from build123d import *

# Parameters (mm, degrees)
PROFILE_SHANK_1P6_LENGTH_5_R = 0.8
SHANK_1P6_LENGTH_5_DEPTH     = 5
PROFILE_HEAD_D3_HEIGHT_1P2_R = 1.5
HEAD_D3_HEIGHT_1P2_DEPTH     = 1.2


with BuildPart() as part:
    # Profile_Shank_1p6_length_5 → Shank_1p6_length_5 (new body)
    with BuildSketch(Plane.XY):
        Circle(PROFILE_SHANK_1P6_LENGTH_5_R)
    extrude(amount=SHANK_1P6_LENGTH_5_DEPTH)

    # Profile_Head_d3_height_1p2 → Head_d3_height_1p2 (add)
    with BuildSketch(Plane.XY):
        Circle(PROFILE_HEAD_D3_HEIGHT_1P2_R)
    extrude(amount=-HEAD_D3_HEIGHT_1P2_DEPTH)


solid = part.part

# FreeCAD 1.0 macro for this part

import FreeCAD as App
import Part
import Sketcher
from FreeCAD import Vector

doc = App.newDocument("Part")
params = doc.addObject("Spreadsheet::Sheet", "Params")
for row, (alias, value) in enumerate([
    ("sketch1_diameter", "1.6 mm"),
    ("pad1_length", "5 mm"),
    ("sketch2_diameter", "3 mm"),
    ("pad2_length", "1.2 mm"),
], start=1):
    params.set(f"A{row}", alias)
    params.set(f"B{row}", "=" + value)
    params.setAlias(f"B{row}", alias)

body = doc.addObject("PartDesign::Body", "Body")

sketch1 = body.newObject("Sketcher::SketchObject", "Sketch")
sketch1.AttachmentSupport = (doc.getObject("XY_Plane"), [""])
sketch1.MapMode = "FlatFace"
sketch1.addGeometry(Part.Circle(Vector(0, 0, 0), Vector(0, 0, 1), 0.8), False)
sketch1.addConstraint(Sketcher.Constraint("Coincident", 0, 3, -1, 1))
sketch1.addConstraint(Sketcher.Constraint("Diameter", 0, 1.6))
sketch1.setExpression("Constraints[1]", "Params.sketch1_diameter")
pad1 = body.newObject("PartDesign::Pad", "Pad")
pad1.Profile = sketch1
pad1.setExpression("Length", "Params.pad1_length")

sketch2 = body.newObject("Sketcher::SketchObject", "Sketch001")
sketch2.AttachmentSupport = (doc.getObject("XY_Plane"), [""])
sketch2.MapMode = "FlatFace"
sketch2.addGeometry(Part.Circle(Vector(0, 0, 0), Vector(0, 0, 1), 1.5), False)
sketch2.addConstraint(Sketcher.Constraint("Coincident", 0, 3, -1, 1))
sketch2.addConstraint(Sketcher.Constraint("Diameter", 0, 3.0))
sketch2.setExpression("Constraints[1]", "Params.sketch2_diameter")
pad2 = body.newObject("PartDesign::Pad", "Pad001")
pad2.Profile = sketch2
pad2.setExpression("Length", "Params.pad2_length")
pad2.Reversed = True

doc.recompute()
